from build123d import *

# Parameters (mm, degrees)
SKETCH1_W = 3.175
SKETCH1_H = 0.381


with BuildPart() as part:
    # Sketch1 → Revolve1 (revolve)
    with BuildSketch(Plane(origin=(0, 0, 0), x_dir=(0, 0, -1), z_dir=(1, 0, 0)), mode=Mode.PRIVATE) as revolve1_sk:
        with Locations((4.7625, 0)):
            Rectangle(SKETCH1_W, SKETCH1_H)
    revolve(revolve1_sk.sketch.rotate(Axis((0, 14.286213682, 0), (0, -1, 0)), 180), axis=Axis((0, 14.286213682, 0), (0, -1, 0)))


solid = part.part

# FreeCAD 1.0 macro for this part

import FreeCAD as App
import Part
import Sketcher
Q = App.Units.Quantity


def add_polygon(sketch, points):
    """Adds a closed chain of lines whose ends are joined by coincident constraints."""
    first, n = sketch.GeometryCount, len(points)
    for a, b in zip(points, points[1:] + points[:1]):
        sketch.addGeometry(Part.LineSegment(App.Vector(*a, 0), App.Vector(*b, 0)), False)
    for i in range(n):
        sketch.addConstraint(Sketcher.Constraint("Coincident", first + i, 2, first + (i + 1) % n, 1))

doc = App.newDocument("Part")
params = doc.addObject("Spreadsheet::Sheet", "Params")
for row, (alias, value) in enumerate([
    ("sketch1_width", "0.015 in"),
    ("sketch1_height", "0.125 in"),
    ("revolution_angle", "360 deg"),
], start=1):
    params.set(f"A{row}", alias)
    params.set(f"B{row}", "=" + value)
    params.setAlias(f"B{row}", alias)

body = doc.addObject("PartDesign::Body", "Body")

sketch1 = body.newObject("Sketcher::SketchObject", "Sketch")
sketch1.AttachmentSupport = (doc.getObject("YZ_Plane"), [""])
sketch1.MapMode = "FlatFace"
add_polygon(sketch1, [(0.19, -3.17), (-0.19, -3.17), (-0.19, -6.35), (0.19, -6.35)])
sketch1.addConstraint([
    Sketcher.Constraint("Horizontal", 0),
    Sketcher.Constraint("Vertical", 1),
    Sketcher.Constraint("Horizontal", 2),
    Sketcher.Constraint("Vertical", 3),
    Sketcher.Constraint("DistanceX", 0, 2, 0, 1, Q("0.015 in")),
    Sketcher.Constraint("DistanceY", 1, 2, 1, 1, Q("0.125 in")),
    Sketcher.Constraint("DistanceY", 1, 2, -1, 1, Q("0.25 in")),
    Sketcher.Constraint("DistanceX", 0, 2, -1, 1, Q("0.0075 in")),
])
sketch1.setExpression("Constraints[8]", "Params.sketch1_width")
sketch1.setExpression("Constraints[9]", "Params.sketch1_height")
revolution = body.newObject("PartDesign::Revolution", "Revolution")
revolution.Profile = sketch1
revolution.ReferenceAxis = (sketch1, ["H_Axis"])
revolution.setExpression("Angle", "Params.revolution_angle")

doc.recompute()
